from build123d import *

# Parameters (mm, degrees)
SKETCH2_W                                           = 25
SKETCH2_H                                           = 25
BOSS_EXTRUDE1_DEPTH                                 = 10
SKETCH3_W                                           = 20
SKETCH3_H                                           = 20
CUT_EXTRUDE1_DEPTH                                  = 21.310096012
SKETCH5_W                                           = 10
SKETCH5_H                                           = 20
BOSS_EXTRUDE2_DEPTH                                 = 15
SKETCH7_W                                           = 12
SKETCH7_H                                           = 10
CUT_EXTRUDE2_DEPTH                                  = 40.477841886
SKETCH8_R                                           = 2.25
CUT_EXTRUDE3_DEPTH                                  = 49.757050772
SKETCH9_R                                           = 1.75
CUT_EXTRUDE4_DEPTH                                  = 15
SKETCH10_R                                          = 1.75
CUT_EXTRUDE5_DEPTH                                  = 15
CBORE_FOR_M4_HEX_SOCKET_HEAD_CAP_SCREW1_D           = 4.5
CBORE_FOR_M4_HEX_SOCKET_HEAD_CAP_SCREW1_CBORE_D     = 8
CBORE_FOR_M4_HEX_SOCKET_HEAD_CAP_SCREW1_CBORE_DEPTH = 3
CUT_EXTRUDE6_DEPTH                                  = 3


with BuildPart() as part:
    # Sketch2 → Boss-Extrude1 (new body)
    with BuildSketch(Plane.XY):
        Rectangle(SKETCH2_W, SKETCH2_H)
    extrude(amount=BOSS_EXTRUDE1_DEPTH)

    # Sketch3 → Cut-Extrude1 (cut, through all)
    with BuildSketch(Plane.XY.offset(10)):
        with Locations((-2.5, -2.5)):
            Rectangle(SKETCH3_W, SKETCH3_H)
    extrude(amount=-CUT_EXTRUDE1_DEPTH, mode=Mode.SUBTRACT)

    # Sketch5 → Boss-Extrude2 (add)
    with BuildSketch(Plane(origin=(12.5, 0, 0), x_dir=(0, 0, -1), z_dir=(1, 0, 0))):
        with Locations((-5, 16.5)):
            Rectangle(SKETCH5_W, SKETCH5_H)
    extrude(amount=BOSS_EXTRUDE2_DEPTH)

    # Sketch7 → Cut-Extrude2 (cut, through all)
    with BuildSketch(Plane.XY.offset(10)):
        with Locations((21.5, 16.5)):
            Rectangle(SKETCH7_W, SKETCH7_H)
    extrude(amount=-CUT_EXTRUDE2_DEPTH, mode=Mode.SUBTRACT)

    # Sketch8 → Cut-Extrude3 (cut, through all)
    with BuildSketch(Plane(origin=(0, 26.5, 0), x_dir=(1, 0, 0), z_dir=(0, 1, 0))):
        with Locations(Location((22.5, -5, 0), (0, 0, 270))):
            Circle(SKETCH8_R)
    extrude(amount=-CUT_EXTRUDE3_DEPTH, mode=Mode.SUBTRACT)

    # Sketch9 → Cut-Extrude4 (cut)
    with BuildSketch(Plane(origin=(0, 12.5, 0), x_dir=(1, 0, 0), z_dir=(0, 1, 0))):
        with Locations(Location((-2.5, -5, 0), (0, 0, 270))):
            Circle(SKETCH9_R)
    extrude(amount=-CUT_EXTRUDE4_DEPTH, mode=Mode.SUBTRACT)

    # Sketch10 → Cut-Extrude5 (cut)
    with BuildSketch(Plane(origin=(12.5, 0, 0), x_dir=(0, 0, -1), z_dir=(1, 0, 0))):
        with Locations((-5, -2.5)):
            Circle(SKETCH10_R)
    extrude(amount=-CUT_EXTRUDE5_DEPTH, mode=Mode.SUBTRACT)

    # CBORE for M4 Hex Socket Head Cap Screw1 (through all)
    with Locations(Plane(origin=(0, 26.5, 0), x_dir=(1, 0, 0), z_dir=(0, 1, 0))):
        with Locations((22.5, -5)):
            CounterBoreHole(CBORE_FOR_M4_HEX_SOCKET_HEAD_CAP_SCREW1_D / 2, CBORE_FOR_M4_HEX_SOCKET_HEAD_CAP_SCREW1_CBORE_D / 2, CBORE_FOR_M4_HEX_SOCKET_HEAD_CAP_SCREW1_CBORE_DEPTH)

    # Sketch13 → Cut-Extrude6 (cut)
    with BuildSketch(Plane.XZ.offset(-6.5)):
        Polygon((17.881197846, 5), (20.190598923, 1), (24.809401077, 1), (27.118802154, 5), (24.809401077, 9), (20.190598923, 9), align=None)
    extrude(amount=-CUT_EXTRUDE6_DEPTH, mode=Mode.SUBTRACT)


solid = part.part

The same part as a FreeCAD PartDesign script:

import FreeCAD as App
import Part
import Sketcher
Q = App.Units.Quantity


def add_polygon(sketch, points):
    """Adds a closed chain of lines whose ends are joined by coincident constraints."""
    first, n = sketch.GeometryCount, len(points)
    for a, b in zip(points, points[1:] + points[:1]):
        sketch.addGeometry(Part.LineSegment(App.Vector(*a, 0), App.Vector(*b, 0)), False)
    for i in range(n):
        sketch.addConstraint(Sketcher.Constraint("Coincident", first + i, 2, first + (i + 1) % n, 1))

doc = App.newDocument("Part")
body = doc.addObject("PartDesign::Body", "Body")

# Sketch on XY plane
sketch1 = doc.addObject("Sketcher::SketchObject", "Sketch")
body.addObject(sketch1)
sketch1.AttachmentSupport = (doc.XY_Plane, [""])
sketch1.MapMode = "FlatFace"
add_polygon(sketch1, [(-12, 12), (-12, -12), (12, -12), (12, 12)])  # lines 0-3
sketch1.addConstraint(Sketcher.Constraint("Vertical", 0))
sketch1.addConstraint(Sketcher.Constraint("Horizontal", 1))
sketch1.addConstraint(Sketcher.Constraint("Vertical", 2))
sketch1.addConstraint(Sketcher.Constraint("Horizontal", 3))
sketch1.addConstraint(Sketcher.Constraint("Symmetric", 0, 2, 2, 2, -1, 1))
sketch1.addConstraint(Sketcher.Constraint("Equal", 3, 0))
sketch1.addConstraint(Sketcher.Constraint("DistanceX", 1, 1, 1, 2, Q("25 mm")))
pad1 = doc.addObject("PartDesign::Pad", "Pad")
body.addObject(pad1)
pad1.Profile = sketch1
pad1.Length = 10

# Sketch on XY plane
sketch2 = doc.addObject("Sketcher::SketchObject", "Sketch001")
body.addObject(sketch2)
sketch2.AttachmentSupport = (doc.XY_Plane, [""])
sketch2.MapMode = "FlatFace"
sketch2.AttachmentOffset = App.Placement(App.Vector(0, 0, 10), App.Rotation())
add_polygon(sketch2, [(-12, 8), (-12, -12), (8, -12), (8, 8)])  # lines 0-3
sketch2.addConstraint(Sketcher.Constraint("Vertical", 0))
sketch2.addConstraint(Sketcher.Constraint("Horizontal", 1))
sketch2.addConstraint(Sketcher.Constraint("Vertical", 2))
sketch2.addConstraint(Sketcher.Constraint("Horizontal", 3))
sketch2.addConstraint(Sketcher.Constraint("Equal", 3, 0))
sketch2.addConstraint(Sketcher.Constraint("DistanceX", 1, 1, 1, 2, Q("20 mm")))
sketch2.addConstraint(Sketcher.Constraint("DistanceX", 0, 2, -1, 1, Q("12.5 mm")))
sketch2.addConstraint(Sketcher.Constraint("DistanceY", 0, 2, -1, 1, Q("12.5 mm")))
pocket1 = doc.addObject("PartDesign::Pocket", "Pocket")
body.addObject(pocket1)
pocket1.Profile = sketch2
pocket1.Type = "ThroughAll"

# Sketch on YZ plane
sketch3 = doc.addObject("Sketcher::SketchObject", "Sketch002")
body.addObject(sketch3)
sketch3.AttachmentSupport = (doc.YZ_Plane, [""])
sketch3.MapMode = "FlatFace"
sketch3.AttachmentOffset = App.Placement(App.Vector(0, 0, 12.5), App.Rotation())
add_polygon(sketch3, [(26, 10), (6, 10), (6, 0), (26, 0)])  # lines 0-3
sketch3.addConstraint(Sketcher.Constraint("Horizontal", 0))
sketch3.addConstraint(Sketcher.Constraint("Vertical", 1))
sketch3.addConstraint(Sketcher.Constraint("Horizontal", 2))
sketch3.addConstraint(Sketcher.Constraint("Vertical", 3))
sketch3.addConstraint(Sketcher.Constraint("PointOnObject", 1, 2, -1))
sketch3.addConstraint(Sketcher.Constraint("DistanceX", 0, 2, 0, 1, Q("20 mm")))
sketch3.addConstraint(Sketcher.Constraint("DistanceY", 1, 2, 1, 1, Q("10 mm")))
sketch3.addConstraint(Sketcher.Constraint("DistanceX", -1, 1, 0, 2, Q("6.5 mm")))
pad2 = doc.addObject("PartDesign::Pad", "Pad001")
body.addObject(pad2)
pad2.Profile = sketch3
pad2.Length = 15

# Sketch on XY plane
sketch4 = doc.addObject("Sketcher::SketchObject", "Sketch003")
body.addObject(sketch4)
sketch4.AttachmentSupport = (doc.XY_Plane, [""])
sketch4.MapMode = "FlatFace"
sketch4.AttachmentOffset = App.Placement(App.Vector(0, 0, 10), App.Rotation())
add_polygon(sketch4, [(16, 22), (16, 12), (28, 12), (28, 22)])  # lines 0-3
sketch4.addConstraint(Sketcher.Constraint("Vertical", 0))
sketch4.addConstraint(Sketcher.Constraint("Horizontal", 1))
sketch4.addConstraint(Sketcher.Constraint("Vertical", 2))
sketch4.addConstraint(Sketcher.Constraint("Horizontal", 3))
sketch4.addConstraint(Sketcher.Constraint("DistanceX", 1, 1, 1, 2, Q("12 mm")))
sketch4.addConstraint(Sketcher.Constraint("DistanceY", 0, 2, 0, 1, Q("10 mm")))
sketch4.addConstraint(Sketcher.Constraint("DistanceX", -1, 1, 0, 2, Q("15.5 mm")))
sketch4.addConstraint(Sketcher.Constraint("DistanceY", -1, 1, 0, 2, Q("11.5 mm")))
pocket2 = doc.addObject("PartDesign::Pocket", "Pocket001")
body.addObject(pocket2)
pocket2.Profile = sketch4
pocket2.Type = "ThroughAll"

# Sketch on XZ plane
sketch5 = doc.addObject("Sketcher::SketchObject", "Sketch004")
body.addObject(sketch5)
sketch5.AttachmentSupport = (doc.XZ_Plane, [""])
sketch5.MapMode = "FlatFace"
sketch5.AttachmentOffset = App.Placement(App.Vector(0, 0, -26.5), App.Rotation())
sketch5.addGeometry(Part.Circle(App.Vector(22.5, 5, 0), App.Vector(0, 0, 1), 2.2), False)
sketch5.addConstraint(Sketcher.Constraint("Diameter", 0, Q("4.5 mm")))
sketch5.addConstraint(Sketcher.Constraint("DistanceY", -1, 1, 0, 3, Q("5 mm")))
sketch5.addConstraint(Sketcher.Constraint("DistanceX", -1, 1, 0, 3, Q("22.5 mm")))
pocket3 = doc.addObject("PartDesign::Pocket", "Pocket002")
body.addObject(pocket3)
pocket3.Profile = sketch5
pocket3.Type = "ThroughAll"
pocket3.Reversed = True

# Sketch on XZ plane
sketch6 = doc.addObject("Sketcher::SketchObject", "Sketch005")
body.addObject(sketch6)
sketch6.AttachmentSupport = (doc.XZ_Plane, [""])
sketch6.MapMode = "FlatFace"
sketch6.AttachmentOffset = App.Placement(App.Vector(0, 0, -12.5), App.Rotation())
sketch6.addGeometry(Part.Circle(App.Vector(-2.5, 5, 0), App.Vector(0, 0, 1), 1.8), False)
sketch6.addConstraint(Sketcher.Constraint("Diameter", 0, Q("3.5 mm")))
sketch6.addConstraint(Sketcher.Constraint("DistanceY", -1, 1, 0, 3, Q("5 mm")))
sketch6.addConstraint(Sketcher.Constraint("DistanceX", 0, 3, -1, 1, Q("2.5 mm")))
pocket4 = doc.addObject("PartDesign::Pocket", "Pocket003")
body.addObject(pocket4)
pocket4.Profile = sketch6
pocket4.Length = 15
pocket4.Reversed = True

# Sketch on YZ plane
sketch7 = doc.addObject("Sketcher::SketchObject", "Sketch006")
body.addObject(sketch7)
sketch7.AttachmentSupport = (doc.YZ_Plane, [""])
sketch7.MapMode = "FlatFace"
sketch7.AttachmentOffset = App.Placement(App.Vector(0, 0, 12.5), App.Rotation())
sketch7.addGeometry(Part.Circle(App.Vector(-2.5, 5, 0), App.Vector(0, 0, 1), 1.8), False)
sketch7.addConstraint(Sketcher.Constraint("Diameter", 0, Q("3.5 mm")))
sketch7.addConstraint(Sketcher.Constraint("DistanceY", -1, 1, 0, 3, Q("5 mm")))
sketch7.addConstraint(Sketcher.Constraint("DistanceX", 0, 3, -1, 1, Q("2.5 mm")))
pocket5 = doc.addObject("PartDesign::Pocket", "Pocket004")
body.addObject(pocket5)
pocket5.Profile = sketch7
pocket5.Length = 15

# Sketch on XZ plane
sketch8 = doc.addObject("Sketcher::SketchObject", "Sketch007")
body.addObject(sketch8)
sketch8.AttachmentSupport = (doc.XZ_Plane, [""])
sketch8.MapMode = "FlatFace"
sketch8.AttachmentOffset = App.Placement(App.Vector(0, 0, -26.5), App.Rotation())
sketch8.addGeometry(Part.Circle(App.Vector(22.5, 5, 0), App.Vector(0, 0, 1), 2.2), False)
sketch8.addConstraint(Sketcher.Constraint("Diameter", 0, Q("4.5 mm")))
sketch8.addConstraint(Sketcher.Constraint("DistanceY", -1, 1, 0, 3, Q("5 mm")))
sketch8.addConstraint(Sketcher.Constraint("DistanceX", -1, 1, 0, 3, Q("22.5 mm")))
doc.recompute()
hole = doc.addObject("PartDesign::Hole", "Hole")
body.addObject(hole)
hole.Profile = sketch8
hole.ThreadType = "None"
hole.Diameter = 4.5
hole.DepthType = "ThroughAll"
hole.HoleCutType = "Counterbore"
hole.HoleCutDiameter = 8
hole.HoleCutDepth = 3
hole.Reversed = True

# Sketch on XZ plane
sketch9 = doc.addObject("Sketcher::SketchObject", "Sketch008")
body.addObject(sketch9)
sketch9.AttachmentSupport = (doc.XZ_Plane, [""])
sketch9.MapMode = "FlatFace"
sketch9.AttachmentOffset = App.Placement(App.Vector(0, 0, -6.5), App.Rotation())
add_polygon(sketch9, [(17.9, 5), (20.2, 1), (24.8, 1), (27.1, 5), (24.8, 9), (20.2, 9)])  # lines 0-5
sketch9.addConstraint(Sketcher.Constraint("Horizontal", 1))
sketch9.addConstraint(Sketcher.Constraint("Horizontal", 4))
sketch9.addConstraint(Sketcher.Constraint("Parallel", 0, 3))
sketch9.addConstraint(Sketcher.Constraint("Parallel", 2, 5))
sketch9.addConstraint(Sketcher.Constraint("Horizontal", 2, 2, 5, 2))
sketch9.addConstraint(Sketcher.Constraint("Vertical", 1, 2, 3, 2))
sketch9.addConstraint(Sketcher.Constraint("Vertical", 0, 2, 4, 2))
sketch9.addConstraint(Sketcher.Constraint("Angle", 0, Q("-60 deg")))
sketch9.addConstraint(Sketcher.Constraint("DistanceY", -1, 1, 0, 2, Q("1 mm")))
sketch9.addConstraint(Sketcher.Constraint("DistanceY", -1, 1, 2, 2, Q("5 mm")))
sketch9.addConstraint(Sketcher.Constraint("DistanceX", -1, 1, 0, 2, Q("20.190599 mm")))
sketch9.addConstraint(Sketcher.Constraint("DistanceX", -1, 1, 1, 2, Q("24.809401 mm")))
pocket6 = doc.addObject("PartDesign::Pocket", "Pocket005")
body.addObject(pocket6)
pocket6.Profile = sketch9
pocket6.Length = 3

doc.recompute()
